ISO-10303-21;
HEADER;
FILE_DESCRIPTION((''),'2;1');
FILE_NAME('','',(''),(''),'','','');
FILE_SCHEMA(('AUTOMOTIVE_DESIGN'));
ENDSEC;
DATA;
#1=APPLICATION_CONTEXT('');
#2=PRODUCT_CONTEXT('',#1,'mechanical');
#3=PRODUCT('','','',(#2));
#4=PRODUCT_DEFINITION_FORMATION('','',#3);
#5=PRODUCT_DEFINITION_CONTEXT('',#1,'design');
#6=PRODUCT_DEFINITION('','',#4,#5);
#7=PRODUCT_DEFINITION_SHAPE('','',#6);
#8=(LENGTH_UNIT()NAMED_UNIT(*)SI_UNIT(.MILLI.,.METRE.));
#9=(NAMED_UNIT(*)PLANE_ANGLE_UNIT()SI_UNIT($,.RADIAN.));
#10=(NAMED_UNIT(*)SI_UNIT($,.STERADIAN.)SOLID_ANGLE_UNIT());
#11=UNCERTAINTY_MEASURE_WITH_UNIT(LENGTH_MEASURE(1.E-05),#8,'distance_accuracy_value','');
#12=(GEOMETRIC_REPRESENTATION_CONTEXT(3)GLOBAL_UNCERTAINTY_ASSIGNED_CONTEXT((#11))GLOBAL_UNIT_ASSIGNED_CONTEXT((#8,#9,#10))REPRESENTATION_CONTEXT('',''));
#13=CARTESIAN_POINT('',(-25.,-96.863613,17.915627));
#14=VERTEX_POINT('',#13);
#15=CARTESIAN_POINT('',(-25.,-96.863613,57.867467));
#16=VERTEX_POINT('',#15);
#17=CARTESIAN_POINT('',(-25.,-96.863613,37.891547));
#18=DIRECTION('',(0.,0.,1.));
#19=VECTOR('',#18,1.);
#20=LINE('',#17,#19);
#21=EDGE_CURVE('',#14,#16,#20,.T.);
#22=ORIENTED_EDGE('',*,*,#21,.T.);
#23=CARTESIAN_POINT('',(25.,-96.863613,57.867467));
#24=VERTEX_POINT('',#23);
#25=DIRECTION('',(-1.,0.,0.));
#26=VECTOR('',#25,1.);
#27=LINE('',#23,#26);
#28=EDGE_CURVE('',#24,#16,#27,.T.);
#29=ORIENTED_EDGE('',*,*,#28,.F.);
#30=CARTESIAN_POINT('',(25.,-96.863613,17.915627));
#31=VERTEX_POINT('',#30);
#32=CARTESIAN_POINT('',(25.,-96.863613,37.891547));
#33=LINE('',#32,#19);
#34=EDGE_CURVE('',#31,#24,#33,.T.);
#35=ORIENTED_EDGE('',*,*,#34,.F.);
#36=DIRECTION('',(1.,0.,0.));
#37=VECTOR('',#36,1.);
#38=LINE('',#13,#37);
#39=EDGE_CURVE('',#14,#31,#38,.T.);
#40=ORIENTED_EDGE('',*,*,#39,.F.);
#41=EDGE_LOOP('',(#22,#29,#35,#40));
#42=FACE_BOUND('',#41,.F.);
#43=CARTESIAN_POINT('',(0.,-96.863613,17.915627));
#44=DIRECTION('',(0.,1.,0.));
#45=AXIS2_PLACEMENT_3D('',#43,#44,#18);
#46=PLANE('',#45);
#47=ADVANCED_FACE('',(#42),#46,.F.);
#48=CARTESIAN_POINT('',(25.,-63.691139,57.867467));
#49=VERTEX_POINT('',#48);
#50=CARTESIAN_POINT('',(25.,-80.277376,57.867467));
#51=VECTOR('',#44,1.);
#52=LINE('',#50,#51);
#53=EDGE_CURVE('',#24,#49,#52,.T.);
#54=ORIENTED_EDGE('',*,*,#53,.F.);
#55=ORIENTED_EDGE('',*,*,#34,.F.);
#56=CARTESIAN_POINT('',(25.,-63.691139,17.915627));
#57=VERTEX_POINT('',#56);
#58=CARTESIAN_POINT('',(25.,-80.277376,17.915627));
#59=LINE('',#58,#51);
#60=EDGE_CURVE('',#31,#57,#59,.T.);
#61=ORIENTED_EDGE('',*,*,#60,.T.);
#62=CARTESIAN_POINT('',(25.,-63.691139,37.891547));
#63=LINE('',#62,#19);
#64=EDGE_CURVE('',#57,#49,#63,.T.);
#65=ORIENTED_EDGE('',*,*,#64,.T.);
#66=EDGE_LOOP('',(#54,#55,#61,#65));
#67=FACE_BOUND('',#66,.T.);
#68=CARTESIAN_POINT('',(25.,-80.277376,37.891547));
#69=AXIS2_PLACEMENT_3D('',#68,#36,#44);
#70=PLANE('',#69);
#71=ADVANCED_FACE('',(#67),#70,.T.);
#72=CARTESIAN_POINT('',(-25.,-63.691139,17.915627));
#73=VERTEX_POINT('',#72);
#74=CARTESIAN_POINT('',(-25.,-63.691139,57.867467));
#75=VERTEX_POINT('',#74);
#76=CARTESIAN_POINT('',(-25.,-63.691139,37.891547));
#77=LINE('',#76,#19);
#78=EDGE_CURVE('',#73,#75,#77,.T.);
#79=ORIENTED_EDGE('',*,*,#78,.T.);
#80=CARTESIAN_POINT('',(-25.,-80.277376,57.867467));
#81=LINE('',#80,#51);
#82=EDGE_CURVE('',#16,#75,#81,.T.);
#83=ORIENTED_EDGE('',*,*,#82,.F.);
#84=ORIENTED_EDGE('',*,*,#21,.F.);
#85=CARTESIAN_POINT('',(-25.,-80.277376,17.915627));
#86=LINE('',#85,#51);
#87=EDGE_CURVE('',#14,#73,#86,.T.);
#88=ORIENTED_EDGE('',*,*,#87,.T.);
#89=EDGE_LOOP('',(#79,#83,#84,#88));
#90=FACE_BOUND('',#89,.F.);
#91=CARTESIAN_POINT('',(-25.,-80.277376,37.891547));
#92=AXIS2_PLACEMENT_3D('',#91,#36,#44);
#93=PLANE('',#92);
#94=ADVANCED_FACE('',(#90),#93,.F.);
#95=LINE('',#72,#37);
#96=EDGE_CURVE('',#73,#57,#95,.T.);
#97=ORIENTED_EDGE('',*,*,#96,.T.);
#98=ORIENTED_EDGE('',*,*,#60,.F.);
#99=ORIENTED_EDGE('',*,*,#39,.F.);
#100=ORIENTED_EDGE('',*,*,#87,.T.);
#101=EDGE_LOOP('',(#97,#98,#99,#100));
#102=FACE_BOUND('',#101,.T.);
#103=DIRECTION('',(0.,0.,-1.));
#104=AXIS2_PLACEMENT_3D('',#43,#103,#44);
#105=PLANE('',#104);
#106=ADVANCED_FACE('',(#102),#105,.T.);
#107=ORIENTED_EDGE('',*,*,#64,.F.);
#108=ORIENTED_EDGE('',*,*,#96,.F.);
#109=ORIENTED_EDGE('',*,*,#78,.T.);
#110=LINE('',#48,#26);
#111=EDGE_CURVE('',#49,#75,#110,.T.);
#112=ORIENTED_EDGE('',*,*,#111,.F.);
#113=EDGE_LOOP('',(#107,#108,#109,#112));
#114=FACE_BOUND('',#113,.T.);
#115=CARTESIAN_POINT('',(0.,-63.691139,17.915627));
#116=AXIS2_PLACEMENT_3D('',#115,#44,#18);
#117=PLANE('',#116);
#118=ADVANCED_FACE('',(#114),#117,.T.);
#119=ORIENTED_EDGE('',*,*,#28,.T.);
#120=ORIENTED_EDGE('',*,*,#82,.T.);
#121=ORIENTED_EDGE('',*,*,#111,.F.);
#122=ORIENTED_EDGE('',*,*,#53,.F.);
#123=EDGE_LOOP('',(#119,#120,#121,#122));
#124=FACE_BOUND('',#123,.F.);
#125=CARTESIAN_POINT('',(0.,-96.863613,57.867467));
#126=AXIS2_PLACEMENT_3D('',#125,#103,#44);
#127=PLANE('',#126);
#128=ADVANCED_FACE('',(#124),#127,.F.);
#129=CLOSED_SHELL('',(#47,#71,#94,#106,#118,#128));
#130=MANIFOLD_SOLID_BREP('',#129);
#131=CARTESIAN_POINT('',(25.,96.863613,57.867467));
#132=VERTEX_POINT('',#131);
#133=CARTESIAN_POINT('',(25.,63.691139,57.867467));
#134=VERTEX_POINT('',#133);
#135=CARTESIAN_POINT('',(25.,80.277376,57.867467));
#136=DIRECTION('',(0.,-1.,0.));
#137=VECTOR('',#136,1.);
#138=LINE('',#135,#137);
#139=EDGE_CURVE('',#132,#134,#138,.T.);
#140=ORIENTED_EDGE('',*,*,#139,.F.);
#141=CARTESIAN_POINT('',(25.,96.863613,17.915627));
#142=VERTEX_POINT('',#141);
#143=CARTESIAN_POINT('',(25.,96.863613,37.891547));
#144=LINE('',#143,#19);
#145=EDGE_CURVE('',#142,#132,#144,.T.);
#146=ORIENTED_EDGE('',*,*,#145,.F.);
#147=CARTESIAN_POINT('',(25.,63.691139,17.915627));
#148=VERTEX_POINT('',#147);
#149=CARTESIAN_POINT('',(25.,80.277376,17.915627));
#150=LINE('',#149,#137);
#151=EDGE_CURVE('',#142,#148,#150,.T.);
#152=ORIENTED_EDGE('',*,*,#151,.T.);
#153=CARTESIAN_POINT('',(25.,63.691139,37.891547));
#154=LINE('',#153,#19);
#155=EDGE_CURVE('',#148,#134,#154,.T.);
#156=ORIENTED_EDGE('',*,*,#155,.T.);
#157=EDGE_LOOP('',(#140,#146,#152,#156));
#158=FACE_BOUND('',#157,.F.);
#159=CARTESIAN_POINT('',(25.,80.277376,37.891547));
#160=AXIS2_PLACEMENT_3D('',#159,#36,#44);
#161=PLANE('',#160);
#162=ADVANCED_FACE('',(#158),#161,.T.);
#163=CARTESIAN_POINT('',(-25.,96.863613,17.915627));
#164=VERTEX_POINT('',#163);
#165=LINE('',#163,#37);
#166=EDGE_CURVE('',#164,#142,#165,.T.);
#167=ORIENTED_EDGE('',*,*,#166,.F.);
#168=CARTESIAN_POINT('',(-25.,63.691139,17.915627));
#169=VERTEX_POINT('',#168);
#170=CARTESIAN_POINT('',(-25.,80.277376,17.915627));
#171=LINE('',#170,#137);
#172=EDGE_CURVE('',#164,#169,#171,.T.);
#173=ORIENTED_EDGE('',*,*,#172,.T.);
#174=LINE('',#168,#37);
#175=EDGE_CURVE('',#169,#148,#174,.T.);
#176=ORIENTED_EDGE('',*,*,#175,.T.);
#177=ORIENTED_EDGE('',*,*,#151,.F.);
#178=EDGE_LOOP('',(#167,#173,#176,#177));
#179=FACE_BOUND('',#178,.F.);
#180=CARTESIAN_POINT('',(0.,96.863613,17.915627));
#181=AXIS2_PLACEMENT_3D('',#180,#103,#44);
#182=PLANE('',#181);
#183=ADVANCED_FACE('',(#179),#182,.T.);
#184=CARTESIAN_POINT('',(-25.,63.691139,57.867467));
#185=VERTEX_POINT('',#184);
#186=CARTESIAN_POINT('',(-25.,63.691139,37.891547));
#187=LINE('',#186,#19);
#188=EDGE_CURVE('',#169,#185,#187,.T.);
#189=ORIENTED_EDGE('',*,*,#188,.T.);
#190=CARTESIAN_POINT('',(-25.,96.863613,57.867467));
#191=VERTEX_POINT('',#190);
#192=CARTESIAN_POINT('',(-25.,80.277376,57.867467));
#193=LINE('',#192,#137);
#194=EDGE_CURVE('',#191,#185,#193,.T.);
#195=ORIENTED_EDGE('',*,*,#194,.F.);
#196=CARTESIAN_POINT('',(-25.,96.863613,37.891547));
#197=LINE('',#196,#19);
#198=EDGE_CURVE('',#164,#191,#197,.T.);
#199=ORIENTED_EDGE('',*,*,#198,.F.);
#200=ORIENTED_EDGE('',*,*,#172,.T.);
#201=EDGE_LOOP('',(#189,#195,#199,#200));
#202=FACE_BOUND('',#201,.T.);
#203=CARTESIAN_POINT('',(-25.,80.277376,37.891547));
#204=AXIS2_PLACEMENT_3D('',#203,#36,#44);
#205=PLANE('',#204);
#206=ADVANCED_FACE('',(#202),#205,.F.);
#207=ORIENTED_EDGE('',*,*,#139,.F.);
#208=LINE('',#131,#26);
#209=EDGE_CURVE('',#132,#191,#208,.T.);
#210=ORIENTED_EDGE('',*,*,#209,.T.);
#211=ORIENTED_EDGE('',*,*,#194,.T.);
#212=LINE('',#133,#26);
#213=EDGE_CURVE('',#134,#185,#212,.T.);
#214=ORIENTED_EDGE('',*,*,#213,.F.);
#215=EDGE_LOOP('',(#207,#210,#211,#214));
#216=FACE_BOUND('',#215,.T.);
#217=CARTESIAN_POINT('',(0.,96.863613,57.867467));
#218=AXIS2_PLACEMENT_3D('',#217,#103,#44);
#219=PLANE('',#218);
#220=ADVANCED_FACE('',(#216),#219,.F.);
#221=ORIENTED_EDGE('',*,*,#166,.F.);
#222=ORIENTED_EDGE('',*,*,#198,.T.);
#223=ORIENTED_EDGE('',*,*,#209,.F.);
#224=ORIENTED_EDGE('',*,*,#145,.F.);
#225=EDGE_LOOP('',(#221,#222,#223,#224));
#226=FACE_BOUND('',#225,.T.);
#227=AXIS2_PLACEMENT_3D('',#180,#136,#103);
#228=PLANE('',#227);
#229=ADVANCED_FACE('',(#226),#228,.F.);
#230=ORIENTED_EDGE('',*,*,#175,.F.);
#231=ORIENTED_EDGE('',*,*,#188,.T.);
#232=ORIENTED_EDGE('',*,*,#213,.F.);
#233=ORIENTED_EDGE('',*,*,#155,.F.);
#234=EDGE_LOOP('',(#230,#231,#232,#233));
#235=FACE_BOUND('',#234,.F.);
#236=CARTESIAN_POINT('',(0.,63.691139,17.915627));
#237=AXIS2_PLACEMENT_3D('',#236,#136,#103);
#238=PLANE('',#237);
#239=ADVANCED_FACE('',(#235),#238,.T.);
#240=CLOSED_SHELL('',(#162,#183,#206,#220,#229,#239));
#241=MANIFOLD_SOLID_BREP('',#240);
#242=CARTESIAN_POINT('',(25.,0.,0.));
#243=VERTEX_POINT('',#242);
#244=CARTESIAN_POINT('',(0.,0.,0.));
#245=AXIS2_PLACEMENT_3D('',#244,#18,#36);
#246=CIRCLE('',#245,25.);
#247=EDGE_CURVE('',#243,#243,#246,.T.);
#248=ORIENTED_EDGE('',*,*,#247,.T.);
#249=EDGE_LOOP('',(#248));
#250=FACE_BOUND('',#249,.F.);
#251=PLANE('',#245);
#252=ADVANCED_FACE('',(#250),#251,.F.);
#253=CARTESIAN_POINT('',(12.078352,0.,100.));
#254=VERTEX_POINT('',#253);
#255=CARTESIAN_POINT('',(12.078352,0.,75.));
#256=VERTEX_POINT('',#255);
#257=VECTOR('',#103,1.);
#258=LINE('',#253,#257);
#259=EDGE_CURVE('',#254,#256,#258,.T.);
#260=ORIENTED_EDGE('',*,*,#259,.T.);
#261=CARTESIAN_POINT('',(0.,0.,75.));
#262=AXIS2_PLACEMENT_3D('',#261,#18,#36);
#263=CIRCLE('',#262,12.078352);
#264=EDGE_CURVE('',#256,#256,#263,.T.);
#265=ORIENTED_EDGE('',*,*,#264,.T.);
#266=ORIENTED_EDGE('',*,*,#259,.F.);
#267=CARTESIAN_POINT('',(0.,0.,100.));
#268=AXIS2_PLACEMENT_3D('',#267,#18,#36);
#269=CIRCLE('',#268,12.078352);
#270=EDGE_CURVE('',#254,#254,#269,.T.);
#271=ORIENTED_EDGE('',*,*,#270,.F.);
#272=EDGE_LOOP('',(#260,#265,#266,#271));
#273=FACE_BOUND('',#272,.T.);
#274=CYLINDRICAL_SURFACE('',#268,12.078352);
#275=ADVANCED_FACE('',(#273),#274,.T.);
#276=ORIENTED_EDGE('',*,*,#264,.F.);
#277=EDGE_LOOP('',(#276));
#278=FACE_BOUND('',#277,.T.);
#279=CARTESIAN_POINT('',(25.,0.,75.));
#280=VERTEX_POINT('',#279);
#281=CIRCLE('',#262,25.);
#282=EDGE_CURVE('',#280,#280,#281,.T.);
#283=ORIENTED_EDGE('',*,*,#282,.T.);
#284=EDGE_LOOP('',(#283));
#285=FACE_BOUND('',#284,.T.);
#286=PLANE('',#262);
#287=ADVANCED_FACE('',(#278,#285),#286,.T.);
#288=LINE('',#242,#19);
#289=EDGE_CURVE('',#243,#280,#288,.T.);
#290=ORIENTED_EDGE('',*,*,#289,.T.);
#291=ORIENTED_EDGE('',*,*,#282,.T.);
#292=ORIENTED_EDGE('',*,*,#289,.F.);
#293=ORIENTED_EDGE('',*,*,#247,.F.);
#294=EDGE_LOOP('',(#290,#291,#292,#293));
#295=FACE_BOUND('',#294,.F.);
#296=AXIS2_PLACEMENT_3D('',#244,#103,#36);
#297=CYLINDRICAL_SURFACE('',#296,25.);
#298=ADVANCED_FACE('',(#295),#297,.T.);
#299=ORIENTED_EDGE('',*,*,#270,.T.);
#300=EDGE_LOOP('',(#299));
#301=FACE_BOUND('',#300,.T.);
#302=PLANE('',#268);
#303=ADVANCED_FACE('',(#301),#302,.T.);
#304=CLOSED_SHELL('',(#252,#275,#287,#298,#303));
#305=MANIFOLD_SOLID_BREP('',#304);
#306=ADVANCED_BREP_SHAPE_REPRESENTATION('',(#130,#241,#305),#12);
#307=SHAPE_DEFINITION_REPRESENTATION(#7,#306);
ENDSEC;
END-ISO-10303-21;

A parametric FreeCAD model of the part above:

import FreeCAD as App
import Part
import Sketcher
from FreeCAD import Vector

doc = App.newDocument("Part")
body = doc.addObject("PartDesign::Body", "Body")

# Sketch on XY plane
sketch1 = doc.addObject("Sketcher::SketchObject", "Sketch")
body.addObject(sketch1)
sketch1.AttachmentSupport = (doc.XY_Plane, [""])
sketch1.MapMode = "FlatFace"
sketch1.addGeometry(Part.Circle(Vector(0, 0, 0), Vector(0, 0, 1), 25), False)
sketch1.addConstraint(Sketcher.Constraint("Coincident", 0, 3, -1, 1))
sketch1.addConstraint(Sketcher.Constraint("Diameter", 0, 50.0))
pad1 = doc.addObject("PartDesign::Pad", "Pad")
body.addObject(pad1)
pad1.Profile = sketch1
pad1.Length = 100

# Sketch on XY plane
sketch2 = doc.addObject("Sketcher::SketchObject", "Sketch001")
body.addObject(sketch2)
sketch2.AttachmentSupport = (doc.XY_Plane, [""])
sketch2.MapMode = "FlatFace"
sketch2.AttachmentOffset = App.Placement(Vector(0, 0, 100), App.Rotation())
sketch2.addGeometry(Part.Circle(Vector(0, 0, 0), Vector(0, 0, 1), 25), False)
sketch2.addGeometry(Part.Circle(Vector(0, 0, 0), Vector(0, 0, 1), 12), False)
sketch2.addConstraint(Sketcher.Constraint("Coincident", 0, 3, -1, 1))
sketch2.addConstraint(Sketcher.Constraint("Coincident", 1, 3, -1, 1))
sketch2.addConstraint(Sketcher.Constraint("Diameter", 0, 50.0))
sketch2.addConstraint(Sketcher.Constraint("Diameter", 1, 24.156704))
pocket1 = doc.addObject("PartDesign::Pocket", "Pocket")
body.addObject(pocket1)
pocket1.Profile = sketch2
pocket1.Length = 25
body2 = doc.addObject("PartDesign::Body", "Body001")

# Sketch on YZ plane
sketch3 = doc.addObject("Sketcher::SketchObject", "Sketch002")
body2.addObject(sketch3)
sketch3.AttachmentSupport = (doc.getObject("YZ_Plane001"), [""])
sketch3.MapMode = "FlatFace"
sketch3.addGeometry(Part.LineSegment(Vector(-97, 58, 0), Vector(-97, 18, 0)), False)
sketch3.addGeometry(Part.LineSegment(Vector(-97, 18, 0), Vector(-64, 18, 0)), False)
sketch3.addGeometry(Part.LineSegment(Vector(-64, 18, 0), Vector(-64, 58, 0)), False)
sketch3.addGeometry(Part.LineSegment(Vector(-64, 58, 0), Vector(-97, 58, 0)), False)
sketch3.addConstraint(Sketcher.Constraint("Coincident", 0, 2, 1, 1))
sketch3.addConstraint(Sketcher.Constraint("Coincident", 1, 2, 2, 1))
sketch3.addConstraint(Sketcher.Constraint("Coincident", 2, 2, 3, 1))
sketch3.addConstraint(Sketcher.Constraint("Coincident", 3, 2, 0, 1))
sketch3.addConstraint(Sketcher.Constraint("Vertical", 0))
sketch3.addConstraint(Sketcher.Constraint("Horizontal", 1))
sketch3.addConstraint(Sketcher.Constraint("Vertical", 2))
sketch3.addConstraint(Sketcher.Constraint("Horizontal", 3))
sketch3.addConstraint(Sketcher.Constraint("DistanceY", 0, 2, 0, 1, 39.95184))
sketch3.addConstraint(Sketcher.Constraint("DistanceX", 1, 1, 1, 2, 33.172474))
sketch3.addConstraint(Sketcher.Constraint("DistanceX", 1, 2, -1, 1, 63.691139))
sketch3.addConstraint(Sketcher.Constraint("DistanceY", -1, 1, 0, 2, 17.915627))
pad2 = doc.addObject("PartDesign::Pad", "Pad001")
body2.addObject(pad2)
pad2.Profile = sketch3
pad2.Length = 50
pad2.Midplane = True
body3 = doc.addObject("PartDesign::Body", "Body002")
doc.recompute()

mirroring = doc.addObject("Part::Mirroring", "Mirroring")
mirroring.Source = body2
mirroring.Base = Vector(0, 0, 0)
mirroring.Normal = Vector(0, -1, 0)
body3.BaseFeature = mirroring
doc.recompute()
mirroring.Visibility = False

doc.recompute()
